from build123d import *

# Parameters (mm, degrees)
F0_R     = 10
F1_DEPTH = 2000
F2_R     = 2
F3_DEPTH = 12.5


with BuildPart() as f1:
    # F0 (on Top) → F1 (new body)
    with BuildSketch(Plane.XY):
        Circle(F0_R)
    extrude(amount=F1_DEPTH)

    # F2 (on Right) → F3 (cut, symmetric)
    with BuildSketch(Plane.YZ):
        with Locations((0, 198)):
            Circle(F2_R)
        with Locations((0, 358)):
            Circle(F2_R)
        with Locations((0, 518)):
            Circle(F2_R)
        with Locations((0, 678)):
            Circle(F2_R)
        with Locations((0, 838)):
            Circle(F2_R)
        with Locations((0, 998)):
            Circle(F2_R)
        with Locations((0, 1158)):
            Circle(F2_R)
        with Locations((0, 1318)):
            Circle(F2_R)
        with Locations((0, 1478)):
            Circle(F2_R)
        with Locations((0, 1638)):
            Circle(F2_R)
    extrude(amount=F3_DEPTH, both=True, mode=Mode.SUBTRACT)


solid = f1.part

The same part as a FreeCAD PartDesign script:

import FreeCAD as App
import Part
import Sketcher
from FreeCAD import Vector
Q = App.Units.Quantity

doc = App.newDocument("Part")
body = doc.addObject("PartDesign::Body", "Body")

sketch1 = body.newObject("Sketcher::SketchObject", "Sketch")
sketch1.AttachmentSupport = (doc.getObject("XY_Plane"), [""])
sketch1.MapMode = "FlatFace"
sketch1.addGeometry(Part.Circle(Vector(0, 0, 0), Vector(0, 0, 1), 10), False)
sketch1.addConstraint([
    Sketcher.Constraint("Coincident", 0, 3, -1, 1),
    Sketcher.Constraint("Diameter", 0, Q("20 mm")),
])
pad1 = body.newObject("PartDesign::Pad", "Pad")
pad1.Profile = sketch1
pad1.Length = 2000

sketch2 = body.newObject("Sketcher::SketchObject", "Sketch001")
sketch2.AttachmentSupport = (doc.getObject("YZ_Plane"), [""])
sketch2.MapMode = "FlatFace"
sketch2.addGeometry([
    Part.Circle(Vector(0, 198, 0), Vector(0, 0, 1), 2),
    Part.Circle(Vector(0, 358, 0), Vector(0, 0, 1), 2),
    Part.Circle(Vector(0, 518, 0), Vector(0, 0, 1), 2),
    Part.Circle(Vector(0, 678, 0), Vector(0, 0, 1), 2),
    Part.Circle(Vector(0, 838, 0), Vector(0, 0, 1), 2),
    Part.Circle(Vector(0, 998, 0), Vector(0, 0, 1), 2),
    Part.Circle(Vector(0, 1158, 0), Vector(0, 0, 1), 2),
    Part.Circle(Vector(0, 1318, 0), Vector(0, 0, 1), 2),
    Part.Circle(Vector(0, 1478, 0), Vector(0, 0, 1), 2),
    Part.Circle(Vector(0, 1638, 0), Vector(0, 0, 1), 2),
], False)
sketch2.addConstraint([
    Sketcher.Constraint("Equal", 0, 1),
    Sketcher.Constraint("Equal", 1, 2),
    Sketcher.Constraint("Equal", 2, 3),
    Sketcher.Constraint("Equal", 3, 4),
    Sketcher.Constraint("Equal", 4, 5),
    Sketcher.Constraint("Equal", 5, 6),
    Sketcher.Constraint("Equal", 6, 7),
    Sketcher.Constraint("Equal", 7, 8),
    Sketcher.Constraint("Equal", 8, 9),
    Sketcher.Constraint("PointOnObject", 0, 3, -2),
    Sketcher.Constraint("PointOnObject", 1, 3, -2),
    Sketcher.Constraint("PointOnObject", 2, 3, -2),
    Sketcher.Constraint("PointOnObject", 3, 3, -2),
    Sketcher.Constraint("PointOnObject", 4, 3, -2),
    Sketcher.Constraint("PointOnObject", 5, 3, -2),
    Sketcher.Constraint("PointOnObject", 6, 3, -2),
    Sketcher.Constraint("PointOnObject", 7, 3, -2),
    Sketcher.Constraint("PointOnObject", 8, 3, -2),
    Sketcher.Constraint("PointOnObject", 9, 3, -2),
    Sketcher.Constraint("Diameter", 0, Q("4 mm")),
    Sketcher.Constraint("DistanceY", -1, 1, 0, 3, Q("198 mm")),
    Sketcher.Constraint("DistanceY", -1, 1, 1, 3, Q("358 mm")),
    Sketcher.Constraint("DistanceY", -1, 1, 2, 3, Q("518 mm")),
    Sketcher.Constraint("DistanceY", -1, 1, 3, 3, Q("678 mm")),
    Sketcher.Constraint("DistanceY", -1, 1, 4, 3, Q("838 mm")),
    Sketcher.Constraint("DistanceY", -1, 1, 5, 3, Q("998 mm")),
    Sketcher.Constraint("DistanceY", -1, 1, 6, 3, Q("1158 mm")),
    Sketcher.Constraint("DistanceY", -1, 1, 7, 3, Q("1318 mm")),
    Sketcher.Constraint("DistanceY", -1, 1, 8, 3, Q("1478 mm")),
    Sketcher.Constraint("DistanceY", -1, 1, 9, 3, Q("1638 mm")),
])
pocket1 = body.newObject("PartDesign::Pocket", "Pocket")
pocket1.Profile = sketch2
pocket1.Length = 25
pocket1.Midplane = True

doc.recompute()
